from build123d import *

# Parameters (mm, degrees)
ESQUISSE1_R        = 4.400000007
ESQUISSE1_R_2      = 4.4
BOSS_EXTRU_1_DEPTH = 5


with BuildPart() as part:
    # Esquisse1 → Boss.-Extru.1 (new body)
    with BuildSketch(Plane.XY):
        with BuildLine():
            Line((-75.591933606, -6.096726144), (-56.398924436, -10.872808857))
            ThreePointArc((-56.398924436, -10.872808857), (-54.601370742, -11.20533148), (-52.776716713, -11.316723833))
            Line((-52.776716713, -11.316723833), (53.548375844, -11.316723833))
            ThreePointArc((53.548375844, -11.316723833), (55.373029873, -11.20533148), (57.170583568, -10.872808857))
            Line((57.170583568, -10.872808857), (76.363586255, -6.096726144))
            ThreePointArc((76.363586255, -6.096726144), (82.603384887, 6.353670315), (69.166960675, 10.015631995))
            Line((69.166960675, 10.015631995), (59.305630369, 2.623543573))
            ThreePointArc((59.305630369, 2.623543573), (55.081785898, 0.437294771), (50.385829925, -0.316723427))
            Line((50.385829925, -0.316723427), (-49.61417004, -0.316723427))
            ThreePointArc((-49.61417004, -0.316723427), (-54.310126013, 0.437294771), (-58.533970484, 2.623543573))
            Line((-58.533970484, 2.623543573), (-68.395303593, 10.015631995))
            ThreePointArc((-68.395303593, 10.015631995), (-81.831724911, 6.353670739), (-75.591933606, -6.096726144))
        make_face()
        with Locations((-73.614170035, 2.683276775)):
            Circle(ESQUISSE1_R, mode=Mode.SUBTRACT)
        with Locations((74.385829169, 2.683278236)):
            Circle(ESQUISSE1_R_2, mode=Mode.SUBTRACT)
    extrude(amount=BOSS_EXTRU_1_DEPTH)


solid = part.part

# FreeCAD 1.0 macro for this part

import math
import FreeCAD as App
import Part
import Sketcher

V = App.Vector

doc = App.newDocument("Part")
body = doc.addObject("PartDesign::Body", "Body")

# Sketch on XY plane
sketch1 = body.newObject("Sketcher::SketchObject", "Sketch")
sketch1.AttachmentSupport = (doc.getObject("XY_Plane"), [""])
sketch1.MapMode = "FlatFace"
sketch1.addGeometry([
    Part.LineSegment(V(-75.6, -6.1, 0), V(-56.4, -10.9, 0)),  # 0
    Part.ArcOfCircle(Part.Circle(V(-52.8, 3.7, 0), V(0, 0, 1), 15), math.radians(-103.97), math.radians(-90)),  # 1
    Part.LineSegment(V(-52.8, -11.3, 0), V(53.5, -11.3, 0)),  # 2
    Part.ArcOfCircle(Part.Circle(V(53.5, 3.7, 0), V(0, 0, 1), 15), math.radians(-90), math.radians(-76.03)),  # 3
    Part.LineSegment(V(57.2, -10.9, 0), V(76.4, -6.1, 0)),  # 4
    Part.ArcOfCircle(Part.Circle(V(74.4, 2.7, 0), V(0, 0, 1), 9), math.radians(-77), math.radians(125)),  # 5
    Part.LineSegment(V(69.2, 10, 0), V(59.3, 2.6, 0)),  # 6
    Part.ArcOfCircle(Part.Circle(V(50.4, 14.7, 0), V(0, 0, 1), 15), math.radians(-90), math.radians(-54)),  # 7
    Part.LineSegment(V(50.4, -0.3, 0), V(-49.6, -0.3, 0)),  # 8
    Part.ArcOfCircle(Part.Circle(V(-49.6, 14.7, 0), V(0, 0, 1), 15), math.radians(-126), math.radians(-90)),  # 9
    Part.LineSegment(V(-58.5, 2.6, 0), V(-68.4, 10, 0)),  # 10
    Part.ArcOfCircle(Part.Circle(V(-73.6, 2.7, 0), V(0, 0, 1), 9), math.radians(55), math.radians(257)),  # 11
    Part.Circle(V(-73.6, 2.7, 0), V(0, 0, 1), 4.4),  # 12
    Part.Circle(V(74.4, 2.7, 0), V(0, 0, 1), 4.4),  # 13
], False)
sketch1.addConstraint([
    Sketcher.Constraint("Tangent", 0, 2, 1, 1),
    Sketcher.Constraint("Tangent", 1, 2, 2, 1),
    Sketcher.Constraint("Tangent", 2, 2, 3, 1),
    Sketcher.Constraint("Tangent", 3, 2, 4, 1),
    Sketcher.Constraint("Coincident", 4, 2, 5, 1),
    Sketcher.Constraint("Coincident", 5, 2, 6, 1),
    Sketcher.Constraint("Coincident", 6, 2, 7, 2),
    Sketcher.Constraint("Tangent", 7, 1, 8, 1),
    Sketcher.Constraint("Tangent", 8, 2, 9, 2),
    Sketcher.Constraint("Coincident", 9, 1, 10, 1),
    Sketcher.Constraint("Coincident", 10, 2, 11, 1),
    Sketcher.Constraint("Coincident", 11, 2, 0, 1),
    Sketcher.Constraint("Horizontal", 2),
    Sketcher.Constraint("Horizontal", 8),
    Sketcher.Constraint("Coincident", 12, 3, 11, 3),
    Sketcher.Constraint("Coincident", 13, 3, 5, 3),
    Sketcher.Constraint("Equal", 1, 3),
    Sketcher.Constraint("Equal", 3, 7),
    Sketcher.Constraint("Equal", 7, 9),
    Sketcher.Constraint("Equal", 5, 11),
    Sketcher.Constraint("Equal", 12, 13),
    Sketcher.Constraint("Horizontal", 5, 3, 11, 3),
    Sketcher.Constraint("Horizontal", 0, 2, 3, 2),
    Sketcher.Constraint("Horizontal", 6, 2, 9, 1),
    Sketcher.Constraint("Horizontal", 5, 2, 10, 2),
    Sketcher.Constraint("Horizontal", 4, 2, 11, 2),
    Sketcher.Constraint("Radius", 1, 15.0),
    Sketcher.Constraint("Radius", 5, 9.0),
    Sketcher.Constraint("Diameter", 12, 8.8),
    Sketcher.Constraint("DistanceX", 8, 2, 8, 1, 100.0),
    Sketcher.Constraint("DistanceY", 5, 3, 3, 3, 0.999998),
    Sketcher.Constraint("DistanceY", 3, 3, 7, 3, 11.0),
    Sketcher.Constraint("DistanceX", 7, 3, 5, 3, 23.999999),
    Sketcher.Constraint("DistanceX", 11, 3, 9, 3, 24.0),
    Sketcher.Constraint("DistanceX", 7, 3, 6, 2, 8.9198),
    Sketcher.Constraint("Distance", 4, 19.77833),
    Sketcher.Constraint("Distance", 10, 12.32432),
    Sketcher.Constraint("DistanceX", 2, 1, 2, 2, 106.325093),
    Sketcher.Constraint("DistanceX", -1, 1, 5, 3, 74.385829),
    Sketcher.Constraint("DistanceY", -1, 1, 5, 3, 2.683278),
])
pad1 = body.newObject("PartDesign::Pad", "Pad")
pad1.Profile = sketch1
pad1.Length = 5

doc.recompute()
